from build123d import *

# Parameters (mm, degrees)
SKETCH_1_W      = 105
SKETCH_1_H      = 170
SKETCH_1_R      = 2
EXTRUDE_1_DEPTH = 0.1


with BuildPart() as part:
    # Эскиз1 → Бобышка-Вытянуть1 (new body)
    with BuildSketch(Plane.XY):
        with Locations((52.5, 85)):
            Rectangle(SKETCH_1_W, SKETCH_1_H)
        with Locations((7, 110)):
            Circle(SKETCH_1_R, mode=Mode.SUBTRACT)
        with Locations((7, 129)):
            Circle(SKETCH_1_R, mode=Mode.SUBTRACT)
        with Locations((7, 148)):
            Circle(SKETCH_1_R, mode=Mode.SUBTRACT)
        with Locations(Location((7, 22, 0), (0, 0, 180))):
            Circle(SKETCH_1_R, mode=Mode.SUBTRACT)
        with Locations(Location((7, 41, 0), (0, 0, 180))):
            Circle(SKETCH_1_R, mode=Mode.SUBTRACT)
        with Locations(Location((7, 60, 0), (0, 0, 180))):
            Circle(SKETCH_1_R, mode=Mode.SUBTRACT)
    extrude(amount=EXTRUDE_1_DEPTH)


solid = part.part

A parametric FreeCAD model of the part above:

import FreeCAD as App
import Part
import Sketcher

V = App.Vector
Q = App.Units.Quantity

doc = App.newDocument("Part")
body = doc.addObject("PartDesign::Body", "Body")

# Sketch on XY plane
sketch1 = body.newObject("Sketcher::SketchObject", "Sketch")
sketch1.AttachmentSupport = (doc.getObject("XY_Plane"), [""])
sketch1.MapMode = "FlatFace"
sketch1.addGeometry([
    Part.LineSegment(V(0, 170, 0), V(0, 0, 0)),  # 0
    Part.LineSegment(V(0, 0, 0), V(105, 0, 0)),  # 1
    Part.LineSegment(V(105, 0, 0), V(105, 170, 0)),  # 2
    Part.LineSegment(V(105, 170, 0), V(0, 170, 0)),  # 3
    Part.Circle(V(7, 22, 0), V(0, 0, 1), 2),  # 4
    Part.Circle(V(7, 41, 0), V(0, 0, 1), 2),  # 5
    Part.Circle(V(7, 60, 0), V(0, 0, 1), 2),  # 6
    Part.Circle(V(7, 110, 0), V(0, 0, 1), 2),  # 7
    Part.Circle(V(7, 129, 0), V(0, 0, 1), 2),  # 8
    Part.Circle(V(7, 148, 0), V(0, 0, 1), 2),  # 9
], False)
sketch1.addConstraint([
    Sketcher.Constraint("Coincident", 0, 2, 1, 1),
    Sketcher.Constraint("Coincident", 1, 2, 2, 1),
    Sketcher.Constraint("Coincident", 2, 2, 3, 1),
    Sketcher.Constraint("Coincident", 3, 2, 0, 1),
    Sketcher.Constraint("Vertical", 0),
    Sketcher.Constraint("Horizontal", 1),
    Sketcher.Constraint("Vertical", 2),
    Sketcher.Constraint("Horizontal", 3),
    Sketcher.Constraint("Coincident", 0, 2, -1, 1),
    Sketcher.Constraint("Equal", 4, 5),
    Sketcher.Constraint("Equal", 5, 6),
    Sketcher.Constraint("Equal", 6, 7),
    Sketcher.Constraint("Equal", 7, 8),
    Sketcher.Constraint("Equal", 8, 9),
    Sketcher.Constraint("Vertical", 4, 3, 5, 3),
    Sketcher.Constraint("Vertical", 5, 3, 6, 3),
    Sketcher.Constraint("Vertical", 6, 3, 7, 3),
    Sketcher.Constraint("Vertical", 7, 3, 8, 3),
    Sketcher.Constraint("Vertical", 8, 3, 9, 3),
    Sketcher.Constraint("Diameter", 4, Q("4 mm")),
    Sketcher.Constraint("DistanceX", 1, 1, 1, 2, Q("105 mm")),
    Sketcher.Constraint("DistanceY", 0, 2, 0, 1, Q("170 mm")),
    Sketcher.Constraint("DistanceX", -1, 1, 4, 3, Q("7 mm")),
    Sketcher.Constraint("DistanceY", -1, 1, 4, 3, Q("22 mm")),
    Sketcher.Constraint("DistanceY", -1, 1, 5, 3, Q("41 mm")),
    Sketcher.Constraint("DistanceY", -1, 1, 6, 3, Q("60 mm")),
    Sketcher.Constraint("DistanceY", -1, 1, 7, 3, Q("110 mm")),
    Sketcher.Constraint("DistanceY", -1, 1, 8, 3, Q("129 mm")),
    Sketcher.Constraint("DistanceY", -1, 1, 9, 3, Q("148 mm")),
])
pad1 = body.newObject("PartDesign::Pad", "Pad")
pad1.Profile = sketch1
pad1.Length = 0.1

doc.recompute()
